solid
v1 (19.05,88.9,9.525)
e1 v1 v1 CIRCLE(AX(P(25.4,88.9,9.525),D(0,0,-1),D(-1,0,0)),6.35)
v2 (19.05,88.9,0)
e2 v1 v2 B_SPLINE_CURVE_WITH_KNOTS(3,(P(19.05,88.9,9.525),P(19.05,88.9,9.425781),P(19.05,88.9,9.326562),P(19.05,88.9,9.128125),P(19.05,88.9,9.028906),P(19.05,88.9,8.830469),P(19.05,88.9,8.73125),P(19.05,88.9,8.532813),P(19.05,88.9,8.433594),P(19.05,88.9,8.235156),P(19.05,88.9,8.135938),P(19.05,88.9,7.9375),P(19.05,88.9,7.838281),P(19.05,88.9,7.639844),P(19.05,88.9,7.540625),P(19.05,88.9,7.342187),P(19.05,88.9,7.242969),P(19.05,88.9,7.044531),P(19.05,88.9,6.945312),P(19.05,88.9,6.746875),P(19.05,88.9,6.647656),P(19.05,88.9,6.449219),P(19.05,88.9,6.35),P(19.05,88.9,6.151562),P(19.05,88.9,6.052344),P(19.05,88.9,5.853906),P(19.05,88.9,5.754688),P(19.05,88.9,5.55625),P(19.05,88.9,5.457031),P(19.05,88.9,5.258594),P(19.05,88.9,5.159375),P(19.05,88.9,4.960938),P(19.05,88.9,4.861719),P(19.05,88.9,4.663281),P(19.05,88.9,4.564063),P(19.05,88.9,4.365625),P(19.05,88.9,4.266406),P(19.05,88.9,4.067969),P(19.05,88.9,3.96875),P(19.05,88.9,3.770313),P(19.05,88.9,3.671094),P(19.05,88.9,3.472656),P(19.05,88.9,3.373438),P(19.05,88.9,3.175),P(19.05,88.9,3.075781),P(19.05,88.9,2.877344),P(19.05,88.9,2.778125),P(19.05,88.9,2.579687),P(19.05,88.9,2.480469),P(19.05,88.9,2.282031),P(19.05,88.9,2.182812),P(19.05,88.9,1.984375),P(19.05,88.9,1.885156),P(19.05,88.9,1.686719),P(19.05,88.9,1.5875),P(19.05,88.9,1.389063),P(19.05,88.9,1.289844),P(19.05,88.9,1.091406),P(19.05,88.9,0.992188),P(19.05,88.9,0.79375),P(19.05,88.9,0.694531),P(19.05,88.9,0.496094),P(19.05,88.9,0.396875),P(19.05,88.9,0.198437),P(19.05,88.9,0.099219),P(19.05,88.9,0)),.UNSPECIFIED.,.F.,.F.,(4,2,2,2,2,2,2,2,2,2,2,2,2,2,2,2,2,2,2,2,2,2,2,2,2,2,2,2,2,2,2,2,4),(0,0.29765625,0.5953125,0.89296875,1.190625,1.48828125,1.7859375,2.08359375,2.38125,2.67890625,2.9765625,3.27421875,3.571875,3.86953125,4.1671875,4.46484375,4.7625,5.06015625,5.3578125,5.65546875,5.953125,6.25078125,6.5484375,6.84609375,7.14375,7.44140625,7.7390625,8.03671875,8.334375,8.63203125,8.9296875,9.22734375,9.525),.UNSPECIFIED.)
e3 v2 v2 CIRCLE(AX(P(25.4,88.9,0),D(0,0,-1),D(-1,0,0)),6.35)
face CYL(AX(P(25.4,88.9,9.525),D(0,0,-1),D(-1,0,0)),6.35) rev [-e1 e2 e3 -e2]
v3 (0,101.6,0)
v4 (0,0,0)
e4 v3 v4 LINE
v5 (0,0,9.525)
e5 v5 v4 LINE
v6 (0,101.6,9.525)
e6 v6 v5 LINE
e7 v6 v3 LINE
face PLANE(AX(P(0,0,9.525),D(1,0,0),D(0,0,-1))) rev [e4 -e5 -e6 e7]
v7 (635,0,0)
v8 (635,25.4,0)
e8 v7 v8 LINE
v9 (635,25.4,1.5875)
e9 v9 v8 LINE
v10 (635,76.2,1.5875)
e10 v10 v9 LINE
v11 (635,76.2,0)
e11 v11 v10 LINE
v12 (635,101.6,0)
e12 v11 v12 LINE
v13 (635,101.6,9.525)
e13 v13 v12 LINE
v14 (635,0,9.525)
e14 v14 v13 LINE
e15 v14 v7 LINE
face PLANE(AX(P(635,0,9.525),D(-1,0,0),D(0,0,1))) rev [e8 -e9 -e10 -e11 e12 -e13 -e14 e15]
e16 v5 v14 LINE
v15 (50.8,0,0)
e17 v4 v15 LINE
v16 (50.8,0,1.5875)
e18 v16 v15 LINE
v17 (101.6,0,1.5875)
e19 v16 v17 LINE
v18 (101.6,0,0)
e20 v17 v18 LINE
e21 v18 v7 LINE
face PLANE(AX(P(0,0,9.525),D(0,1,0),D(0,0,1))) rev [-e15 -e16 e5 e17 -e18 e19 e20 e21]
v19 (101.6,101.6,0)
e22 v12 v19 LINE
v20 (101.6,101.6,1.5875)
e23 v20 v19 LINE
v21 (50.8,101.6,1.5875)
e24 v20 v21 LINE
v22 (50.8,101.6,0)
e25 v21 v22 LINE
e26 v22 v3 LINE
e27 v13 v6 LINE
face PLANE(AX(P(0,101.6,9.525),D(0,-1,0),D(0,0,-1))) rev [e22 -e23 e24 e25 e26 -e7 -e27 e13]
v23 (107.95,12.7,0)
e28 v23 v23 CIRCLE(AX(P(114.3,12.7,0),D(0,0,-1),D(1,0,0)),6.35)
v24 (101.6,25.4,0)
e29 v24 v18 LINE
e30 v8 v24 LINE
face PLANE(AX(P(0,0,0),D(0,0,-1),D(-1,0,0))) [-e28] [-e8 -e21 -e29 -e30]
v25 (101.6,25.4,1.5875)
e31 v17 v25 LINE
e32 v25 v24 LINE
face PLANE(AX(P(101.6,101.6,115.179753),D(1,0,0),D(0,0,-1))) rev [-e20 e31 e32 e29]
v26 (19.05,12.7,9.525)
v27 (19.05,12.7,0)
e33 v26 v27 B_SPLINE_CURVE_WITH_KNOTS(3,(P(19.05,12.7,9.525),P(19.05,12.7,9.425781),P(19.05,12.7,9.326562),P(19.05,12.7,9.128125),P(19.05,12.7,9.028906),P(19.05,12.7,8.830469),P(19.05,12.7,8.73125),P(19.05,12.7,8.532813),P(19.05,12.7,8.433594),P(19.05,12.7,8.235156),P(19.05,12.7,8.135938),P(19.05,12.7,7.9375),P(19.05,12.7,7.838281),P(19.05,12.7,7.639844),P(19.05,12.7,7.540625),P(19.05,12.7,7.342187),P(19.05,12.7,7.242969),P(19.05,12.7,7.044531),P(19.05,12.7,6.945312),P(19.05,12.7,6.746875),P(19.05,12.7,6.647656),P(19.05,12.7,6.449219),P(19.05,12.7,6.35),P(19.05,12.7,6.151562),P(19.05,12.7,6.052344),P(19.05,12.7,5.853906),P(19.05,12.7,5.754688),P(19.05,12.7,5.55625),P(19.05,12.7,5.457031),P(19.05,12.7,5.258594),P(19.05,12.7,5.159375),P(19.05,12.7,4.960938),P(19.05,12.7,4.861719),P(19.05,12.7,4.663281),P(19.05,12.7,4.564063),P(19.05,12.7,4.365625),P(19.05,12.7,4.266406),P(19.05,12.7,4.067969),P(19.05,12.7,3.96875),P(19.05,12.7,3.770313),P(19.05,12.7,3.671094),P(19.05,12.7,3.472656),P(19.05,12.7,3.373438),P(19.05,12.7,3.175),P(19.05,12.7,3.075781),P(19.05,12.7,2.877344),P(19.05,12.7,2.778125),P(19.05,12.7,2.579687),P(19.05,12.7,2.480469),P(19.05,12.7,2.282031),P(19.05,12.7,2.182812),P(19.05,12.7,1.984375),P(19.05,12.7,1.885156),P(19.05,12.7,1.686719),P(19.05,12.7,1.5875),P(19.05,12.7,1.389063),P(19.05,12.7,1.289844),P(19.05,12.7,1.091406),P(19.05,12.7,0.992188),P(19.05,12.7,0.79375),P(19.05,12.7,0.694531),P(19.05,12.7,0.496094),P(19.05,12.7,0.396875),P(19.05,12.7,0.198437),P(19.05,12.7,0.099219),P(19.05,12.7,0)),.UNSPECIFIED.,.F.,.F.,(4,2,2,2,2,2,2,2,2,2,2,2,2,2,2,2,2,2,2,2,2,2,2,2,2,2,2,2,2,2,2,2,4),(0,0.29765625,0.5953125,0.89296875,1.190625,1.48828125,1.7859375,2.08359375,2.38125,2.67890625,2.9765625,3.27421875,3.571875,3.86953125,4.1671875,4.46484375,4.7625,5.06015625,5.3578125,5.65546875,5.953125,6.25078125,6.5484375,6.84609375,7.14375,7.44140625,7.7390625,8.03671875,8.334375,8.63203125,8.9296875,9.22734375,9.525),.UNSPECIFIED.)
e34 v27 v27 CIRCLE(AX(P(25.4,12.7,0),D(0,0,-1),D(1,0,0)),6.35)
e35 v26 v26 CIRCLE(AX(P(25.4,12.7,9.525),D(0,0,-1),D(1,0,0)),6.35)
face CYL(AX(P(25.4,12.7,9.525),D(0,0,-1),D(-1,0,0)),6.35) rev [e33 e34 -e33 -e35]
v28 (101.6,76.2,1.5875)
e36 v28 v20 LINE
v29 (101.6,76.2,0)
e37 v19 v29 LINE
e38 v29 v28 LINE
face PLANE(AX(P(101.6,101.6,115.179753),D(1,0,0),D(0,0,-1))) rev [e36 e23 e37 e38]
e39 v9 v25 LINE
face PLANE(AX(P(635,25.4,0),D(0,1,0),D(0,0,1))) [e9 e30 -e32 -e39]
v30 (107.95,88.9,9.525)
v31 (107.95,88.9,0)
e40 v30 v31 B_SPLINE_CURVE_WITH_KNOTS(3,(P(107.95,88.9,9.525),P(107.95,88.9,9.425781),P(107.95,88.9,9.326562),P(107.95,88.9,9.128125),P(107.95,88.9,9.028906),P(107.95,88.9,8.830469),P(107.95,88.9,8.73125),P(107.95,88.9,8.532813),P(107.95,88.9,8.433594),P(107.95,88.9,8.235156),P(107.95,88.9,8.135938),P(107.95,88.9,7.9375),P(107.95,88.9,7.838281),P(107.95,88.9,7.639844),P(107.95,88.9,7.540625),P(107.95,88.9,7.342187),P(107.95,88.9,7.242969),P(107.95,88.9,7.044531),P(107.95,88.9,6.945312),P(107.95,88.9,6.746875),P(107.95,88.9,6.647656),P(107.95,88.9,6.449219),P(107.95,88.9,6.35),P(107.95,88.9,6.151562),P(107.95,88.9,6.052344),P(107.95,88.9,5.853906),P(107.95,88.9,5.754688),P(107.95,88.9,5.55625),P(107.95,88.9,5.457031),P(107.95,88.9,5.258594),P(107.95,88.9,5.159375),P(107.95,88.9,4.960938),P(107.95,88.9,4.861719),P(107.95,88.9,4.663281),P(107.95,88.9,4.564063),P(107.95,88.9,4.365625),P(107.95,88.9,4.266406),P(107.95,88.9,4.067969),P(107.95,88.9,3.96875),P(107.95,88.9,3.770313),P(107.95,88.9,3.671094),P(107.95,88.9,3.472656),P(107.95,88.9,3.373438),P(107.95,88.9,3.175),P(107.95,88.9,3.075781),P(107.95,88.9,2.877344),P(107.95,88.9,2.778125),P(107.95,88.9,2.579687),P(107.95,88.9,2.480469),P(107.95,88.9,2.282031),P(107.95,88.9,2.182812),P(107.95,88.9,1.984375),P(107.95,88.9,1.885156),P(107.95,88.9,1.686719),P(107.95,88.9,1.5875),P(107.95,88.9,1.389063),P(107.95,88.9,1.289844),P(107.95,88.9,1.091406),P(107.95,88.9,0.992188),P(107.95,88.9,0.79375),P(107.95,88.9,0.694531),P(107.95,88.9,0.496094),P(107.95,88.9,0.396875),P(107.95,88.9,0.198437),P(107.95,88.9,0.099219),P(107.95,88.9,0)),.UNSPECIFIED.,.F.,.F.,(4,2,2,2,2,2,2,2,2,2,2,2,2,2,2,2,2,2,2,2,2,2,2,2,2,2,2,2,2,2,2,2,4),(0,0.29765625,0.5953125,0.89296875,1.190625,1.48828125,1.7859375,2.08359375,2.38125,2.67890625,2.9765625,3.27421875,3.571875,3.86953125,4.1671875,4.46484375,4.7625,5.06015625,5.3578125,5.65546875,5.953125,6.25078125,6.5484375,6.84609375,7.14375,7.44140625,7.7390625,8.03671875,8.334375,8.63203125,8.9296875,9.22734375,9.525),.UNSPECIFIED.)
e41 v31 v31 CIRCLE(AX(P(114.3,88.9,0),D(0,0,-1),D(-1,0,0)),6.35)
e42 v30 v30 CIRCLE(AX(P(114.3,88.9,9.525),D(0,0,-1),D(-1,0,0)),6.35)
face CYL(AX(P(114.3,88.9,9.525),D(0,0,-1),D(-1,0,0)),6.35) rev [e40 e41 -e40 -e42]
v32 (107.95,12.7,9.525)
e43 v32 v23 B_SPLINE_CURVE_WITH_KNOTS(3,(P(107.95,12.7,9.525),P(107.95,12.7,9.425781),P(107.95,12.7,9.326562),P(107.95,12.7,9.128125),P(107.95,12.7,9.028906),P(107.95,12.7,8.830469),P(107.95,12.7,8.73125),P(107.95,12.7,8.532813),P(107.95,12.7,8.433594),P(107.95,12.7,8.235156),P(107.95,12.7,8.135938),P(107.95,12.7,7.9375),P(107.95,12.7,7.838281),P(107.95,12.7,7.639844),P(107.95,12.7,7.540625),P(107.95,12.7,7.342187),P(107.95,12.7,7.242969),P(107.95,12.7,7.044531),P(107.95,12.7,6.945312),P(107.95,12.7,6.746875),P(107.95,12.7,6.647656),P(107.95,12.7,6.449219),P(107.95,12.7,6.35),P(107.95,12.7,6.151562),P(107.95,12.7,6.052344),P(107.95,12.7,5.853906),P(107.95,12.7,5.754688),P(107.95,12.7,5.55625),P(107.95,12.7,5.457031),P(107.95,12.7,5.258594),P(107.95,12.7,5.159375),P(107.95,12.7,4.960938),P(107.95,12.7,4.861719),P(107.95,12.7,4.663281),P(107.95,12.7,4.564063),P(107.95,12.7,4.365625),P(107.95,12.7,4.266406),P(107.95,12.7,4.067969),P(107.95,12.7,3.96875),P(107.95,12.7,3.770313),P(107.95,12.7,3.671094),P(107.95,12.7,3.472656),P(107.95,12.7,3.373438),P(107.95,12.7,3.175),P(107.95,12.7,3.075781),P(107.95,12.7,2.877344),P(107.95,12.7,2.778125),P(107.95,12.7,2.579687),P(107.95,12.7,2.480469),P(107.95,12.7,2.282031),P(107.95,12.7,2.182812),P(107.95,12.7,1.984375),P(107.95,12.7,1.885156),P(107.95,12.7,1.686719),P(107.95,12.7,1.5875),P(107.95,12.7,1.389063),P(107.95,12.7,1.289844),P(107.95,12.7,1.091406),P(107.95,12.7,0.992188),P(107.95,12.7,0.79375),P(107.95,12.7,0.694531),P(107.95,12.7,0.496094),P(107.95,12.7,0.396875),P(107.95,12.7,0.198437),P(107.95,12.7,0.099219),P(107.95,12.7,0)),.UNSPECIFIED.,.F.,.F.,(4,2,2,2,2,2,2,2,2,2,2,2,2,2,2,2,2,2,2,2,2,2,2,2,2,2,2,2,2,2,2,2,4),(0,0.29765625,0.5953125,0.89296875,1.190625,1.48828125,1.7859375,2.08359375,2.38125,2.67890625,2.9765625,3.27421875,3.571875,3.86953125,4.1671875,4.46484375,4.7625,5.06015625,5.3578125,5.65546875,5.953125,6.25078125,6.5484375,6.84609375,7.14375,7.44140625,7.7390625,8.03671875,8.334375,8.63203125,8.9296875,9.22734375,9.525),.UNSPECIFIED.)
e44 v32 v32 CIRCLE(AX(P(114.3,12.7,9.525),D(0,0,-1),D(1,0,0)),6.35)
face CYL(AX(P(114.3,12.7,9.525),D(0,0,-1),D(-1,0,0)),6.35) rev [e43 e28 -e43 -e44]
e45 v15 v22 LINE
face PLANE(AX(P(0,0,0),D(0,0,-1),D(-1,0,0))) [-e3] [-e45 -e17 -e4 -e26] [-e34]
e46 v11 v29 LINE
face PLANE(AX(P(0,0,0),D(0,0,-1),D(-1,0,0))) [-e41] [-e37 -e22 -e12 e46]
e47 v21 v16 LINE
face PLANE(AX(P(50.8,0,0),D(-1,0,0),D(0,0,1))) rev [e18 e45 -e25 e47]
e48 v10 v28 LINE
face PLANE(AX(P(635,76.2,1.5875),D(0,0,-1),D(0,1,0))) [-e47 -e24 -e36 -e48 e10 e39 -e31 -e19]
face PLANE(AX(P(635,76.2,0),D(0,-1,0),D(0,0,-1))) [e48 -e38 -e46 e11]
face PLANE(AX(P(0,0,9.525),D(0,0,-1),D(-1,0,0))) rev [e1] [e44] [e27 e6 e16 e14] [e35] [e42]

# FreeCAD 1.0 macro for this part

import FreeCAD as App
import Part
import Sketcher
from FreeCAD import Vector
Q = App.Units.Quantity


def add_polygon(sketch, points):
    """Adds a closed chain of lines whose ends are joined by coincident constraints."""
    first, n = sketch.GeometryCount, len(points)
    for a, b in zip(points, points[1:] + points[:1]):
        sketch.addGeometry(Part.LineSegment(App.Vector(*a, 0), App.Vector(*b, 0)), False)
    for i in range(n):
        sketch.addConstraint(Sketcher.Constraint("Coincident", first + i, 2, first + (i + 1) % n, 1))

doc = App.newDocument("Part")
body = doc.addObject("PartDesign::Body", "Body")

# Sketch on XY plane
sketch1 = body.newObject("Sketcher::SketchObject", "Sketch")
sketch1.AttachmentSupport = (doc.getObject("XY_Plane"), [""])
sketch1.MapMode = "FlatFace"
add_polygon(sketch1, [(0, 102), (0, 0), (635, 0), (635, 102)])  # lines 0-3
sketch1.addConstraint([
    Sketcher.Constraint("Vertical", 0),
    Sketcher.Constraint("Horizontal", 1),
    Sketcher.Constraint("Vertical", 2),
    Sketcher.Constraint("Horizontal", 3),
    Sketcher.Constraint("Coincident", 0, 2, -1, 1),
    Sketcher.Constraint("DistanceX", 1, 1, 1, 2, Q("25 in")),
    Sketcher.Constraint("DistanceY", 0, 2, 0, 1, Q("4 in")),
])
pad1 = body.newObject("PartDesign::Pad", "Pad")
pad1.Profile = sketch1
pad1.Length = Q("0.375 in")

# Sketch on YZ plane
sketch2 = body.newObject("Sketcher::SketchObject", "Sketch001")
sketch2.AttachmentSupport = (doc.getObject("YZ_Plane"), [""])
sketch2.MapMode = "FlatFace"
sketch2.AttachmentOffset = App.Placement(Vector(0, 0, 2.375 * 25.4), App.Rotation())
add_polygon(sketch2, [(76.2, 1.6), (25.4, 1.6), (25.4, 0), (76.2, 0)])  # lines 0-3
sketch2.addConstraint([
    Sketcher.Constraint("Horizontal", 0),
    Sketcher.Constraint("Vertical", 1),
    Sketcher.Constraint("Horizontal", 2),
    Sketcher.Constraint("Vertical", 3),
    Sketcher.Constraint("PointOnObject", 1, 2, -1),
    Sketcher.Constraint("DistanceX", 0, 2, 0, 1, Q("2 in")),
    Sketcher.Constraint("DistanceX", -1, 1, 0, 2, Q("1 in")),
    Sketcher.Constraint("DistanceY", 1, 2, 1, 1, Q("0.0625 in")),
])
pocket1 = body.newObject("PartDesign::Pocket", "Pocket")
pocket1.Profile = sketch2
pocket1.Type = "TwoLengths"
pocket1.Length = 644.147173
pocket1.Length2 = Q("0.375 in")
pocket1.Reversed = True

# Sketch on XY plane
sketch3 = body.newObject("Sketcher::SketchObject", "Sketch002")
sketch3.AttachmentSupport = (doc.getObject("XY_Plane"), [""])
sketch3.MapMode = "FlatFace"
sketch3.addGeometry([
    Part.Circle(Vector(25, 89, 0), Vector(0, 0, 1), 6),
    Part.Circle(Vector(114, 89, 0), Vector(0, 0, 1), 6),
    Part.Circle(Vector(114, 13, 0), Vector(0, 0, 1), 6),
    Part.Circle(Vector(25, 13, 0), Vector(0, 0, 1), 6),
], False)
sketch3.addConstraint([
    Sketcher.Constraint("Equal", 0, 1),
    Sketcher.Constraint("Equal", 1, 2),
    Sketcher.Constraint("Equal", 2, 3),
    Sketcher.Constraint("Horizontal", 0, 3, 1, 3),
    Sketcher.Constraint("Horizontal", 2, 3, 3, 3),
    Sketcher.Constraint("Vertical", 1, 3, 2, 3),
    Sketcher.Constraint("Vertical", 0, 3, 3, 3),
    Sketcher.Constraint("Diameter", 0, Q("0.5 in")),
    Sketcher.Constraint("DistanceX", -1, 1, 0, 3, Q("1 in")),
    Sketcher.Constraint("DistanceY", 2, 3, 1, 3, Q("3 in")),
    Sketcher.Constraint("DistanceY", -1, 1, 0, 3, Q("3.5 in")),
    Sketcher.Constraint("DistanceX", -1, 1, 1, 3, Q("4.5 in")),
])
pocket2 = body.newObject("PartDesign::Pocket", "Pocket001")
pocket2.Profile = sketch3
pocket2.Type = "ThroughAll"
pocket2.Midplane = True

# Sketch on XY plane
sketch4 = body.newObject("Sketcher::SketchObject", "Sketch003")
sketch4.AttachmentSupport = (doc.getObject("XY_Plane"), [""])
sketch4.MapMode = "FlatFace"
add_polygon(sketch4, [(102, 102), (102, 0), (51, 0), (51, 102)])  # lines 0-3
sketch4.addConstraint([
    Sketcher.Constraint("Vertical", 0),
    Sketcher.Constraint("Horizontal", 1),
    Sketcher.Constraint("Vertical", 2),
    Sketcher.Constraint("Horizontal", 3),
    Sketcher.Constraint("PointOnObject", 0, 2, -1),
    Sketcher.Constraint("DistanceX", 1, 2, 1, 1, Q("2 in")),
    Sketcher.Constraint("DistanceY", 0, 2, 0, 1, Q("4 in")),
    Sketcher.Constraint("DistanceX", -1, 1, 0, 2, Q("4 in")),
])
pocket3 = body.newObject("PartDesign::Pocket", "Pocket002")
pocket3.Profile = sketch4
pocket3.Length = Q("0.0625 in")
pocket3.Reversed = True

doc.recompute()
